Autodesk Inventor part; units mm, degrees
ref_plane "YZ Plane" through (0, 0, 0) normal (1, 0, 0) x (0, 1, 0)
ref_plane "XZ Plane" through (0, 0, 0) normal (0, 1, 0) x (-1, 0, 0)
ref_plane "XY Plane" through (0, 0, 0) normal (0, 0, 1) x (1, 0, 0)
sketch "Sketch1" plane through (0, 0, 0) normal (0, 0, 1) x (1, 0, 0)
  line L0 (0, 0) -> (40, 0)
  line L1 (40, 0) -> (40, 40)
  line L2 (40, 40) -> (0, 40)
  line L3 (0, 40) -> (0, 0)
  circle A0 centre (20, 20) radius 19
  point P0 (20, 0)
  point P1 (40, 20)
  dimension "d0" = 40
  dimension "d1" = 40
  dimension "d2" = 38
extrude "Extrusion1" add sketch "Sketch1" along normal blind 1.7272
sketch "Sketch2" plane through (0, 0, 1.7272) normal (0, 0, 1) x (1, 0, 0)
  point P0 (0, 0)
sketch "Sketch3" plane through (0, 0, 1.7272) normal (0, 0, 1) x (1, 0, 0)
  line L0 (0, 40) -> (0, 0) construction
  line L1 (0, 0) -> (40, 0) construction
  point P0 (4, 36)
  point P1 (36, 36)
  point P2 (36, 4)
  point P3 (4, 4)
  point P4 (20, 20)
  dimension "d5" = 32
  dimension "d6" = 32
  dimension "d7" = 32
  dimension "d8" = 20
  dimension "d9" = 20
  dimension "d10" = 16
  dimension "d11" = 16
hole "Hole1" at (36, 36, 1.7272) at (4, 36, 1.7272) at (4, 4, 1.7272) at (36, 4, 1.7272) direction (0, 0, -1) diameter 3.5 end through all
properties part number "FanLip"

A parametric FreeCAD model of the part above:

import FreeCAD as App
import Part
import Sketcher

V = App.Vector

doc = App.newDocument("Part")
body = doc.addObject("PartDesign::Body", "Body")

sketch1 = body.newObject("Sketcher::SketchObject", "Sketch")
sketch1.AttachmentSupport = (doc.getObject("XY_Plane"), [""])
sketch1.MapMode = "FlatFace"
sketch1.addGeometry([
    Part.LineSegment(V(0, 40, 0), V(0, 0, 0)),
    Part.LineSegment(V(0, 0, 0), V(40, 0, 0)),
    Part.LineSegment(V(40, 0, 0), V(40, 40, 0)),
    Part.LineSegment(V(40, 40, 0), V(0, 40, 0)),
    Part.Circle(V(20, 20, 0), V(0, 0, 1), 19),
], False)
sketch1.addConstraint([
    Sketcher.Constraint("Coincident", 0, 2, 1, 1),
    Sketcher.Constraint("Coincident", 1, 2, 2, 1),
    Sketcher.Constraint("Coincident", 2, 2, 3, 1),
    Sketcher.Constraint("Coincident", 3, 2, 0, 1),
    Sketcher.Constraint("Vertical", 0),
    Sketcher.Constraint("Horizontal", 1),
    Sketcher.Constraint("Vertical", 2),
    Sketcher.Constraint("Horizontal", 3),
    Sketcher.Constraint("Coincident", 0, 2, -1, 1),
    Sketcher.Constraint("Equal", 3, 0),
    Sketcher.Constraint("Diameter", 4, 38.0),
    Sketcher.Constraint("DistanceX", 1, 1, 1, 2, 40.0),
    Sketcher.Constraint("DistanceX", -1, 1, 4, 3, 20.0),
    Sketcher.Constraint("DistanceY", -1, 1, 4, 3, 20.0),
])
pad1 = body.newObject("PartDesign::Pad", "Pad")
pad1.Profile = sketch1
pad1.Length = 1.7272

sketch2 = body.newObject("Sketcher::SketchObject", "Sketch001")
sketch2.AttachmentSupport = (doc.getObject("XY_Plane"), [""])
sketch2.MapMode = "FlatFace"
sketch2.AttachmentOffset = App.Placement(V(0, 0, 1.7272), App.Rotation())
sketch2.addGeometry([
    Part.Circle(V(36, 36, 0), V(0, 0, 1), 1.8),
    Part.Circle(V(4, 36, 0), V(0, 0, 1), 1.8),
    Part.Circle(V(4, 4, 0), V(0, 0, 1), 1.8),
    Part.Circle(V(36, 4, 0), V(0, 0, 1), 1.8),
], False)
sketch2.addConstraint([
    Sketcher.Constraint("Equal", 0, 1),
    Sketcher.Constraint("Equal", 1, 2),
    Sketcher.Constraint("Equal", 2, 3),
    Sketcher.Constraint("Horizontal", 0, 3, 1, 3),
    Sketcher.Constraint("Horizontal", 2, 3, 3, 3),
    Sketcher.Constraint("Vertical", 1, 3, 2, 3),
    Sketcher.Constraint("Vertical", 0, 3, 3, 3),
    Sketcher.Constraint("Diameter", 0, 3.5),
    Sketcher.Constraint("DistanceX", -1, 1, 0, 3, 36.0),
    Sketcher.Constraint("DistanceY", -1, 1, 0, 3, 36.0),
    Sketcher.Constraint("DistanceX", -1, 1, 1, 3, 4.0),
    Sketcher.Constraint("DistanceY", -1, 1, 2, 3, 4.0),
])
doc.recompute()
hole = body.newObject("PartDesign::Hole", "Hole")
hole.Profile = sketch2
hole.ThreadType = "None"
hole.Diameter = 3.5
hole.DepthType = "ThroughAll"

doc.recompute()
